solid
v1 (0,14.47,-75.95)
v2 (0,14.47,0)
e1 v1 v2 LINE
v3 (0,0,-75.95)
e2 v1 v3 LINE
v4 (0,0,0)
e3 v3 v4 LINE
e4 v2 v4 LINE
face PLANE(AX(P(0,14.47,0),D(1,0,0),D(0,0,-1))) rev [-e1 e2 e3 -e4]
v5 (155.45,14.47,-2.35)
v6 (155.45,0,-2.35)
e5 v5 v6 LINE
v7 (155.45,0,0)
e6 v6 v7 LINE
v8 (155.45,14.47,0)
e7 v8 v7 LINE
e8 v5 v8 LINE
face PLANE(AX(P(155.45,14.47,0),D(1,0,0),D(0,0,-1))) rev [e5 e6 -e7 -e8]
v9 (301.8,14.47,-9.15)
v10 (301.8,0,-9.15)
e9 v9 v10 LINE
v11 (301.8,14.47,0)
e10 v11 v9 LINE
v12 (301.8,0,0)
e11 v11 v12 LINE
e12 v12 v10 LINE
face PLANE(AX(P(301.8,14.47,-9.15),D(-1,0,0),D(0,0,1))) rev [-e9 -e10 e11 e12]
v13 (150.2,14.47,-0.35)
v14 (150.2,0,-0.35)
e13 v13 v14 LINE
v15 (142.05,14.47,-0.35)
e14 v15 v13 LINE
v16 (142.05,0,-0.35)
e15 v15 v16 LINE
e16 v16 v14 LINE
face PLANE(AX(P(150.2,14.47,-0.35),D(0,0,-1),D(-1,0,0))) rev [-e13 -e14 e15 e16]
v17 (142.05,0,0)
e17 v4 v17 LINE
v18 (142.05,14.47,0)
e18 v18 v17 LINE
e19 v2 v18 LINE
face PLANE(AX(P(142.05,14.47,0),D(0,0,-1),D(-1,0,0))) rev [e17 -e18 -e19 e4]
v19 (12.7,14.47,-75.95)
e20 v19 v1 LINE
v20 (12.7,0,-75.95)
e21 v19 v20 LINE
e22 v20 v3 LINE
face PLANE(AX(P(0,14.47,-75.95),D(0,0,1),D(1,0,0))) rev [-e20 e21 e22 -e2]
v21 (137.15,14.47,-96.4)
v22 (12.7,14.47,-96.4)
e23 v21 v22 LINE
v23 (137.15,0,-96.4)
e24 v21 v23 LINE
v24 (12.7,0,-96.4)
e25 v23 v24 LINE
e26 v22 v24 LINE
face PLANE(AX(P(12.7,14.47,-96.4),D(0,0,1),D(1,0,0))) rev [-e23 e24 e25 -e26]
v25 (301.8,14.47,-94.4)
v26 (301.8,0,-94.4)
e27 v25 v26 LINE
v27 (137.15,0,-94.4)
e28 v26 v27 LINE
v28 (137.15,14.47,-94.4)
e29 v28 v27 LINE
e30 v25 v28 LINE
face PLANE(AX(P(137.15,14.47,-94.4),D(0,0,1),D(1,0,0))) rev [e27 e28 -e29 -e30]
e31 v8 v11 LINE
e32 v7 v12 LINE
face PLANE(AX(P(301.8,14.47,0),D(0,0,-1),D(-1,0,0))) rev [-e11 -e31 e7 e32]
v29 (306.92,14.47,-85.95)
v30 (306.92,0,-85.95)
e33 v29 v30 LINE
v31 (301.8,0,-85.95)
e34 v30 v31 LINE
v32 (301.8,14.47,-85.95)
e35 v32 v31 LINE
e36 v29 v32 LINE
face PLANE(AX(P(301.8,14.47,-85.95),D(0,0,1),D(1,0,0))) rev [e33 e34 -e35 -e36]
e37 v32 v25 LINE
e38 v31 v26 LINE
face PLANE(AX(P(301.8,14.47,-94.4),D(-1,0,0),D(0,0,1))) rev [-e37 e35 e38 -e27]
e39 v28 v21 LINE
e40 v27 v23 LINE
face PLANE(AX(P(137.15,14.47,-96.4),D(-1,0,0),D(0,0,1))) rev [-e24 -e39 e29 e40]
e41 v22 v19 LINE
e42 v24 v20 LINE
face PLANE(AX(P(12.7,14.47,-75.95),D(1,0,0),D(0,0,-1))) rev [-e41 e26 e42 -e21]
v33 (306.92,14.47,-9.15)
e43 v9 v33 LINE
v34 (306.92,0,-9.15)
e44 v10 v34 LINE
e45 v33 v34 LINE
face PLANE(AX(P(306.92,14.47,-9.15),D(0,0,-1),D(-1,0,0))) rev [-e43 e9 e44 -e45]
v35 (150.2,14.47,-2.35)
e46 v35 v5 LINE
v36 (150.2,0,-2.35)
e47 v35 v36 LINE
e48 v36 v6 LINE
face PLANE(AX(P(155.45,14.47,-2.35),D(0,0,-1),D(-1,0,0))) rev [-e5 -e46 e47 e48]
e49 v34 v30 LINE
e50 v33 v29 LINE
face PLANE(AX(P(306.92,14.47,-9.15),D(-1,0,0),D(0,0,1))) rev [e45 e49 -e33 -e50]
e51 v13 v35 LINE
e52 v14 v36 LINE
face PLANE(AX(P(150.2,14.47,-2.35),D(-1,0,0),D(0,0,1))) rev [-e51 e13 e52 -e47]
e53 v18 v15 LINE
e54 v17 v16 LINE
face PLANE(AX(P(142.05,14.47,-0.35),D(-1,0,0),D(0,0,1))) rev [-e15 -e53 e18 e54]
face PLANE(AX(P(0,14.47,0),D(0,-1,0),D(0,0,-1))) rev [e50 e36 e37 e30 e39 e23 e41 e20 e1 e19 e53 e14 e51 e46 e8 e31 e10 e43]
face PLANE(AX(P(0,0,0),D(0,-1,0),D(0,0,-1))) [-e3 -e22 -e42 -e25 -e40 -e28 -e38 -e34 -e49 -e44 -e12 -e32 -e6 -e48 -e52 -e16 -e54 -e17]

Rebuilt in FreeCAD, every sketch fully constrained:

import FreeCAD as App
import Part
import Sketcher

doc = App.newDocument("Part")
params = doc.addObject("Spreadsheet::Sheet", "Params")
for row, (alias, value) in enumerate([
    ("sketch1_height", "2 mm"),
    ("sketch1_width", "12.7 mm"),
    ("sketch1_height2", "76.8 mm"),
    ("sketch1_width2", "142.05 mm"),
    ("sketch1_width3", "8.15 mm"),
    ("pad1_length", "14.47 mm"),
], start=1):
    params.set(f"A{row}", alias)
    params.set(f"B{row}", "=" + value)
    params.setAlias(f"B{row}", alias)

body = doc.addObject("PartDesign::Body", "Body")

# Sketch on XZ plane
sketch1 = body.newObject("Sketcher::SketchObject", "Sketch")
sketch1.AttachmentSupport = (doc.getObject("XZ_Plane"), [""])
sketch1.MapMode = "FlatFace"
sketch1.addGeometry([
    Part.LineSegment(App.Vector(0, -75.95, 0), App.Vector(0, 0, 0)),  # 0
    Part.LineSegment(App.Vector(0, 0, 0), App.Vector(142.05, 0, 0)),  # 1
    Part.LineSegment(App.Vector(142.05, 0, 0), App.Vector(142.05, -0.35, 0)),  # 2
    Part.LineSegment(App.Vector(142.05, -0.35, 0), App.Vector(150.2, -0.35, 0)),  # 3
    Part.LineSegment(App.Vector(150.2, -0.35, 0), App.Vector(150.2, -2.35, 0)),  # 4
    Part.LineSegment(App.Vector(150.2, -2.35, 0), App.Vector(155.45, -2.35, 0)),  # 5
    Part.LineSegment(App.Vector(155.45, -2.35, 0), App.Vector(155.45, 0, 0)),  # 6
    Part.LineSegment(App.Vector(155.45, 0, 0), App.Vector(301.8, 0, 0)),  # 7
    Part.LineSegment(App.Vector(301.8, 0, 0), App.Vector(301.8, -9.15, 0)),  # 8
    Part.LineSegment(App.Vector(301.8, -9.15, 0), App.Vector(306.92, -9.15, 0)),  # 9
    Part.LineSegment(App.Vector(306.92, -9.15, 0), App.Vector(306.92, -85.95, 0)),  # 10
    Part.LineSegment(App.Vector(306.92, -85.95, 0), App.Vector(301.8, -85.95, 0)),  # 11
    Part.LineSegment(App.Vector(301.8, -85.95, 0), App.Vector(301.8, -94.4, 0)),  # 12
    Part.LineSegment(App.Vector(301.8, -94.4, 0), App.Vector(137.15, -94.4, 0)),  # 13
    Part.LineSegment(App.Vector(137.15, -94.4, 0), App.Vector(137.15, -96.4, 0)),  # 14
    Part.LineSegment(App.Vector(137.15, -96.4, 0), App.Vector(12.7, -96.4, 0)),  # 15
    Part.LineSegment(App.Vector(12.7, -96.4, 0), App.Vector(12.7, -75.95, 0)),  # 16
    Part.LineSegment(App.Vector(12.7, -75.95, 0), App.Vector(0, -75.95, 0)),  # 17
], False)
sketch1.addConstraint([
    Sketcher.Constraint("Coincident", 0, 2, 1, 1),
    Sketcher.Constraint("Coincident", 1, 2, 2, 1),
    Sketcher.Constraint("Coincident", 2, 2, 3, 1),
    Sketcher.Constraint("Coincident", 3, 2, 4, 1),
    Sketcher.Constraint("Coincident", 4, 2, 5, 1),
    Sketcher.Constraint("Coincident", 5, 2, 6, 1),
    Sketcher.Constraint("Coincident", 6, 2, 7, 1),
    Sketcher.Constraint("Coincident", 7, 2, 8, 1),
    Sketcher.Constraint("Coincident", 8, 2, 9, 1),
    Sketcher.Constraint("Coincident", 9, 2, 10, 1),
    Sketcher.Constraint("Coincident", 10, 2, 11, 1),
    Sketcher.Constraint("Coincident", 11, 2, 12, 1),
    Sketcher.Constraint("Coincident", 12, 2, 13, 1),
    Sketcher.Constraint("Coincident", 13, 2, 14, 1),
    Sketcher.Constraint("Coincident", 14, 2, 15, 1),
    Sketcher.Constraint("Coincident", 15, 2, 16, 1),
    Sketcher.Constraint("Coincident", 16, 2, 17, 1),
    Sketcher.Constraint("Coincident", 17, 2, 0, 1),
    Sketcher.Constraint("Vertical", 0),
    Sketcher.Constraint("Horizontal", 1),
    Sketcher.Constraint("Vertical", 2),
    Sketcher.Constraint("Horizontal", 3),
    Sketcher.Constraint("Vertical", 4),
    Sketcher.Constraint("Horizontal", 5),
    Sketcher.Constraint("Vertical", 6),
    Sketcher.Constraint("Horizontal", 7),
    Sketcher.Constraint("Vertical", 8),
    Sketcher.Constraint("Horizontal", 9),
    Sketcher.Constraint("Vertical", 10),
    Sketcher.Constraint("Horizontal", 11),
    Sketcher.Constraint("Vertical", 12),
    Sketcher.Constraint("Horizontal", 13),
    Sketcher.Constraint("Vertical", 14),
    Sketcher.Constraint("Horizontal", 15),
    Sketcher.Constraint("Vertical", 16),
    Sketcher.Constraint("Horizontal", 17),
    Sketcher.Constraint("Coincident", 0, 2, -1, 1),
    Sketcher.Constraint("PointOnObject", 6, 2, -1),
    Sketcher.Constraint("Vertical", 8, 2, 11, 2),
    Sketcher.Constraint("Equal", 4, 14),
    Sketcher.Constraint("DistanceY", 4, 2, 4, 1, 2.0),
    Sketcher.Constraint("DistanceX", 17, 2, 17, 1, 12.7),
    Sketcher.Constraint("DistanceY", 10, 2, 10, 1, 76.8),
    Sketcher.Constraint("DistanceX", 1, 1, 1, 2, 142.05),
    Sketcher.Constraint("DistanceX", 3, 1, 3, 2, 8.15),
    Sketcher.Constraint("DistanceX", 5, 1, 5, 2, 5.25),
    Sketcher.Constraint("DistanceX", 7, 1, 7, 2, 146.35),
    Sketcher.Constraint("DistanceX", 9, 1, 9, 2, 5.12),
    Sketcher.Constraint("DistanceX", 13, 2, 13, 1, 164.65),
    Sketcher.Constraint("DistanceY", 0, 1, 0, 2, 75.95),
    Sketcher.Constraint("DistanceY", 2, 2, 2, 1, 0.35),
    Sketcher.Constraint("DistanceY", 8, 2, 8, 1, 9.15),
    Sketcher.Constraint("DistanceY", 12, 2, 12, 1, 8.45),
])
sketch1.setExpression("Constraints[40]", "Params.sketch1_height")
sketch1.setExpression("Constraints[41]", "Params.sketch1_width")
sketch1.setExpression("Constraints[42]", "Params.sketch1_height2")
sketch1.setExpression("Constraints[43]", "Params.sketch1_width2")
sketch1.setExpression("Constraints[44]", "Params.sketch1_width3")
pad1 = body.newObject("PartDesign::Pad", "Pad")
pad1.Profile = sketch1
pad1.setExpression("Length", "Params.pad1_length")
pad1.Reversed = True

doc.recompute()
